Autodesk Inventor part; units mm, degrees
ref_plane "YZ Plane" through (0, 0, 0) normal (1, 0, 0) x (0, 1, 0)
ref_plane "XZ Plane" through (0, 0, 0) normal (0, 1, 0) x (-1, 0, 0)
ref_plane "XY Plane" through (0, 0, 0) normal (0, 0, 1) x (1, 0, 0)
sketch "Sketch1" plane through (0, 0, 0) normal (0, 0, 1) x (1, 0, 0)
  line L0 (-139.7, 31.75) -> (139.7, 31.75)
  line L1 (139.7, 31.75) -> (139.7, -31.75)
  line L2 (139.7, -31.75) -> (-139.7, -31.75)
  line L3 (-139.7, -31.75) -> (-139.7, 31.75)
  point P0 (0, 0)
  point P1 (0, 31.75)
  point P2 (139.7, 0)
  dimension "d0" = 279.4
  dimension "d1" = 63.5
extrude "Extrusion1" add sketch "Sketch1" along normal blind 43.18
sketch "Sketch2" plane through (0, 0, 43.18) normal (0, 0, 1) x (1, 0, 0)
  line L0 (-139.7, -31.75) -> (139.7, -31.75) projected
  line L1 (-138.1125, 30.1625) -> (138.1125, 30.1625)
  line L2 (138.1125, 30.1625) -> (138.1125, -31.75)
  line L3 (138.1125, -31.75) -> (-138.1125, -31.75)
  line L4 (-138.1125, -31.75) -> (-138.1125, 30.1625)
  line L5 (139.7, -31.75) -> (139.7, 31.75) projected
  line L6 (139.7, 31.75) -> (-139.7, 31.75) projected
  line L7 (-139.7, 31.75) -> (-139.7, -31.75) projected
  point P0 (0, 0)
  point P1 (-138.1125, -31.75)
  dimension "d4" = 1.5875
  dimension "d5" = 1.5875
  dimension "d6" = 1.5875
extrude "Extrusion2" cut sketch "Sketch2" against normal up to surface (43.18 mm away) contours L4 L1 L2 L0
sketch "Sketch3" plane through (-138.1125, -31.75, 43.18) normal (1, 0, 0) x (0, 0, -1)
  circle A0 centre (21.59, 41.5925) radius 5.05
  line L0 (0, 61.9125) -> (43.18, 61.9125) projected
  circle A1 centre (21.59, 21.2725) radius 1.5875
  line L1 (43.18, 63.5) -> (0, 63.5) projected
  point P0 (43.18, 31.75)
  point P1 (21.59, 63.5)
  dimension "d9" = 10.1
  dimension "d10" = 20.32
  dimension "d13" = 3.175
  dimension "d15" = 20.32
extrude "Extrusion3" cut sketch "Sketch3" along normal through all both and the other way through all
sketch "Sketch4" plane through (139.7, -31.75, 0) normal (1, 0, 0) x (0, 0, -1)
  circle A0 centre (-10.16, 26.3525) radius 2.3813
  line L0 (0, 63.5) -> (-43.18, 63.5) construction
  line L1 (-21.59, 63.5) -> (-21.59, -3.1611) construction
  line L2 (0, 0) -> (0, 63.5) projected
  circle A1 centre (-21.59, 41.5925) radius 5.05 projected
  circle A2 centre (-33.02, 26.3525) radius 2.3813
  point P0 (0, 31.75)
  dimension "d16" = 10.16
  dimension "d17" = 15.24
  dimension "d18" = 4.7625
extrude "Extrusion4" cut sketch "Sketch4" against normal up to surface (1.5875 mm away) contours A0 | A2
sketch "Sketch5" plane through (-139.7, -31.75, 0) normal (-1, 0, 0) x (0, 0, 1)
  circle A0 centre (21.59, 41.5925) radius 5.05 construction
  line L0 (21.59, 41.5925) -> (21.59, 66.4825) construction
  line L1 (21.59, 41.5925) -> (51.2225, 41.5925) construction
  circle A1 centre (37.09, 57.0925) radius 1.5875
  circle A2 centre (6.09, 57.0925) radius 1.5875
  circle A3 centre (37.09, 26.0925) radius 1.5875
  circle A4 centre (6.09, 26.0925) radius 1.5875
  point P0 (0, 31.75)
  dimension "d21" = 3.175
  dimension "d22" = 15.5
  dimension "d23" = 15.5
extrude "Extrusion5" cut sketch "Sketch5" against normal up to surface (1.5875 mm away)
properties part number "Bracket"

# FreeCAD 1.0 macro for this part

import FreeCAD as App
import Part
import Sketcher
Q = App.Units.Quantity

doc = App.newDocument("Part")
params = doc.addObject("Spreadsheet::Sheet", "Params")
for row, (alias, value) in enumerate([
    ("sketch1_width", "11 in"),
    ("sketch1_height", "2.5 in"),
    ("pad1_length", "1.7 in"),
    ("sketch2_width", "10.875 in"),
    ("sketch2_height", "2.4375 in"),
    ("pocket1_length", "1.7 in"),
    ("sketch3_diameter", "0.125 in"),
    ("sketch4_diameter", "0.1875 in"),
    ("pocket3_length", "0.0625 in"),
    ("sketch5_diameter", "0.125 in"),
    ("pocket4_length", "0.0625 in"),
], start=1):
    params.set(f"A{row}", alias)
    params.set(f"B{row}", "=" + value)
    params.setAlias(f"B{row}", alias)

body = doc.addObject("PartDesign::Body", "Body")

sketch1 = body.newObject("Sketcher::SketchObject", "Sketch")
sketch1.AttachmentSupport = (doc.getObject("XY_Plane"), [""])
sketch1.MapMode = "FlatFace"
sketch1.addGeometry(Part.LineSegment(App.Vector(140, 32, 0), App.Vector(-140, 32, 0)), False)
sketch1.addGeometry(Part.LineSegment(App.Vector(-140, 32, 0), App.Vector(-140, -32, 0)), False)
sketch1.addGeometry(Part.LineSegment(App.Vector(-140, -32, 0), App.Vector(140, -32, 0)), False)
sketch1.addGeometry(Part.LineSegment(App.Vector(140, -32, 0), App.Vector(140, 32, 0)), False)
sketch1.addConstraint(Sketcher.Constraint("Coincident", 0, 2, 1, 1))
sketch1.addConstraint(Sketcher.Constraint("Coincident", 1, 2, 2, 1))
sketch1.addConstraint(Sketcher.Constraint("Coincident", 2, 2, 3, 1))
sketch1.addConstraint(Sketcher.Constraint("Coincident", 3, 2, 0, 1))
sketch1.addConstraint(Sketcher.Constraint("Horizontal", 0))
sketch1.addConstraint(Sketcher.Constraint("Vertical", 1))
sketch1.addConstraint(Sketcher.Constraint("Horizontal", 2))
sketch1.addConstraint(Sketcher.Constraint("Vertical", 3))
sketch1.addConstraint(Sketcher.Constraint("Symmetric", 0, 2, 2, 2, -1, 1))
sketch1.addConstraint(Sketcher.Constraint("DistanceX", 0, 2, 0, 1, Q("11 in")))
sketch1.addConstraint(Sketcher.Constraint("DistanceY", 1, 2, 1, 1, Q("2.5 in")))
sketch1.setExpression("Constraints[9]", "Params.sketch1_width")
sketch1.setExpression("Constraints[10]", "Params.sketch1_height")
pad1 = body.newObject("PartDesign::Pad", "Pad")
pad1.Profile = sketch1
pad1.setExpression("Length", "Params.pad1_length")

sketch2 = body.newObject("Sketcher::SketchObject", "Sketch001")
sketch2.AttachmentSupport = (doc.getObject("XY_Plane"), [""])
sketch2.MapMode = "FlatFace"
sketch2.AttachmentOffset = App.Placement(App.Vector(0, 0, 1.7 * 25.4), App.Rotation())
sketch2.addGeometry(Part.LineSegment(App.Vector(-138, 30, 0), App.Vector(-138, -32, 0)), False)
sketch2.addGeometry(Part.LineSegment(App.Vector(-138, -32, 0), App.Vector(138, -32, 0)), False)
sketch2.addGeometry(Part.LineSegment(App.Vector(138, -32, 0), App.Vector(138, 30, 0)), False)
sketch2.addGeometry(Part.LineSegment(App.Vector(138, 30, 0), App.Vector(-138, 30, 0)), False)
sketch2.addConstraint(Sketcher.Constraint("Coincident", 0, 2, 1, 1))
sketch2.addConstraint(Sketcher.Constraint("Coincident", 1, 2, 2, 1))
sketch2.addConstraint(Sketcher.Constraint("Coincident", 2, 2, 3, 1))
sketch2.addConstraint(Sketcher.Constraint("Coincident", 3, 2, 0, 1))
sketch2.addConstraint(Sketcher.Constraint("Vertical", 0))
sketch2.addConstraint(Sketcher.Constraint("Horizontal", 1))
sketch2.addConstraint(Sketcher.Constraint("Vertical", 2))
sketch2.addConstraint(Sketcher.Constraint("Horizontal", 3))
sketch2.addConstraint(Sketcher.Constraint("DistanceX", 1, 1, 1, 2, Q("10.875 in")))
sketch2.addConstraint(Sketcher.Constraint("DistanceY", 0, 2, 0, 1, Q("2.4375 in")))
sketch2.addConstraint(Sketcher.Constraint("DistanceY", 0, 2, -1, 1, Q("1.25 in")))
sketch2.addConstraint(Sketcher.Constraint("DistanceX", 0, 2, -1, 1, Q("5.4375 in")))
sketch2.setExpression("Constraints[8]", "Params.sketch2_width")
sketch2.setExpression("Constraints[9]", "Params.sketch2_height")
pocket1 = body.newObject("PartDesign::Pocket", "Pocket")
pocket1.Profile = sketch2
pocket1.setExpression("Length", "Params.pocket1_length")

sketch3 = body.newObject("Sketcher::SketchObject", "Sketch002")
sketch3.AttachmentSupport = (doc.getObject("YZ_Plane"), [""])
sketch3.MapMode = "FlatFace"
sketch3.AttachmentOffset = App.Placement(App.Vector(0, 0, -5.4375 * 25.4), App.Rotation())
sketch3.addGeometry(Part.Circle(App.Vector(9.8, 21.6, 0), App.Vector(0, 0, 1), 5), False)
sketch3.addGeometry(Part.Circle(App.Vector(-10.5, 21.6, 0), App.Vector(0, 0, 1), 1.6), False)
sketch3.addConstraint(Sketcher.Constraint("Horizontal", 0, 3, 1, 3))
sketch3.addConstraint(Sketcher.Constraint("Diameter", 1, Q("0.125 in")))
sketch3.addConstraint(Sketcher.Constraint("DistanceX", 1, 3, 0, 3, Q("0.8 in")))
sketch3.addConstraint(Sketcher.Constraint("Diameter", 0, 10.1))
sketch3.addConstraint(Sketcher.Constraint("DistanceY", -1, 1, 0, 3, Q("0.85 in")))
sketch3.addConstraint(Sketcher.Constraint("DistanceX", -1, 1, 0, 3, Q("0.3875 in")))
sketch3.setExpression("Constraints[1]", "Params.sketch3_diameter")
pocket2 = body.newObject("PartDesign::Pocket", "Pocket001")
pocket2.Profile = sketch3
pocket2.Type = "ThroughAll"
pocket2.Midplane = True

sketch4 = body.newObject("Sketcher::SketchObject", "Sketch003")
sketch4.AttachmentSupport = (doc.getObject("YZ_Plane"), [""])
sketch4.MapMode = "FlatFace"
sketch4.AttachmentOffset = App.Placement(App.Vector(0, 0, 5.5 * 25.4), App.Rotation())
sketch4.addGeometry(Part.Circle(App.Vector(-5.4, 10.2, 0), App.Vector(0, 0, 1), 2.4), False)
sketch4.addGeometry(Part.Circle(App.Vector(-5.4, 33, 0), App.Vector(0, 0, 1), 2.4), False)
sketch4.addConstraint(Sketcher.Constraint("Equal", 0, 1))
sketch4.addConstraint(Sketcher.Constraint("Vertical", 0, 3, 1, 3))
sketch4.addConstraint(Sketcher.Constraint("Diameter", 0, Q("0.1875 in")))
sketch4.addConstraint(Sketcher.Constraint("DistanceY", -1, 1, 0, 3, Q("0.4 in")))
sketch4.addConstraint(Sketcher.Constraint("DistanceY", -1, 1, 1, 3, Q("1.3 in")))
sketch4.addConstraint(Sketcher.Constraint("DistanceX", 0, 3, -1, 1, Q("0.2125 in")))
sketch4.setExpression("Constraints[2]", "Params.sketch4_diameter")
pocket3 = body.newObject("PartDesign::Pocket", "Pocket002")
pocket3.Profile = sketch4
pocket3.setExpression("Length", "Params.pocket3_length")

sketch5 = body.newObject("Sketcher::SketchObject", "Sketch004")
sketch5.AttachmentSupport = (doc.getObject("YZ_Plane"), [""])
sketch5.MapMode = "FlatFace"
sketch5.AttachmentOffset = App.Placement(App.Vector(0, 0, -5.5 * 25.4), App.Rotation())
sketch5.addGeometry(Part.Circle(App.Vector(25.3, 37.1, 0), App.Vector(0, 0, 1), 1.6), False)
sketch5.addGeometry(Part.Circle(App.Vector(25.3, 6.1, 0), App.Vector(0, 0, 1), 1.6), False)
sketch5.addGeometry(Part.Circle(App.Vector(-5.7, 37.1, 0), App.Vector(0, 0, 1), 1.6), False)
sketch5.addGeometry(Part.Circle(App.Vector(-5.7, 6.1, 0), App.Vector(0, 0, 1), 1.6), False)
sketch5.addConstraint(Sketcher.Constraint("Equal", 0, 1))
sketch5.addConstraint(Sketcher.Constraint("Equal", 1, 2))
sketch5.addConstraint(Sketcher.Constraint("Equal", 2, 3))
sketch5.addConstraint(Sketcher.Constraint("Horizontal", 0, 3, 2, 3))
sketch5.addConstraint(Sketcher.Constraint("Horizontal", 1, 3, 3, 3))
sketch5.addConstraint(Sketcher.Constraint("Vertical", 0, 3, 1, 3))
sketch5.addConstraint(Sketcher.Constraint("Vertical", 2, 3, 3, 3))
sketch5.addConstraint(Sketcher.Constraint("Diameter", 0, Q("0.125 in")))
sketch5.addConstraint(Sketcher.Constraint("DistanceX", -1, 1, 0, 3, 25.3425))
sketch5.addConstraint(Sketcher.Constraint("DistanceY", -1, 1, 0, 3, 37.09))
sketch5.addConstraint(Sketcher.Constraint("DistanceY", -1, 1, 1, 3, 6.09))
sketch5.addConstraint(Sketcher.Constraint("DistanceX", 2, 3, -1, 1, 5.6575))
sketch5.setExpression("Constraints[7]", "Params.sketch5_diameter")
pocket4 = body.newObject("PartDesign::Pocket", "Pocket003")
pocket4.Profile = sketch5
pocket4.setExpression("Length", "Params.pocket4_length")
pocket4.Reversed = True

doc.recompute()
